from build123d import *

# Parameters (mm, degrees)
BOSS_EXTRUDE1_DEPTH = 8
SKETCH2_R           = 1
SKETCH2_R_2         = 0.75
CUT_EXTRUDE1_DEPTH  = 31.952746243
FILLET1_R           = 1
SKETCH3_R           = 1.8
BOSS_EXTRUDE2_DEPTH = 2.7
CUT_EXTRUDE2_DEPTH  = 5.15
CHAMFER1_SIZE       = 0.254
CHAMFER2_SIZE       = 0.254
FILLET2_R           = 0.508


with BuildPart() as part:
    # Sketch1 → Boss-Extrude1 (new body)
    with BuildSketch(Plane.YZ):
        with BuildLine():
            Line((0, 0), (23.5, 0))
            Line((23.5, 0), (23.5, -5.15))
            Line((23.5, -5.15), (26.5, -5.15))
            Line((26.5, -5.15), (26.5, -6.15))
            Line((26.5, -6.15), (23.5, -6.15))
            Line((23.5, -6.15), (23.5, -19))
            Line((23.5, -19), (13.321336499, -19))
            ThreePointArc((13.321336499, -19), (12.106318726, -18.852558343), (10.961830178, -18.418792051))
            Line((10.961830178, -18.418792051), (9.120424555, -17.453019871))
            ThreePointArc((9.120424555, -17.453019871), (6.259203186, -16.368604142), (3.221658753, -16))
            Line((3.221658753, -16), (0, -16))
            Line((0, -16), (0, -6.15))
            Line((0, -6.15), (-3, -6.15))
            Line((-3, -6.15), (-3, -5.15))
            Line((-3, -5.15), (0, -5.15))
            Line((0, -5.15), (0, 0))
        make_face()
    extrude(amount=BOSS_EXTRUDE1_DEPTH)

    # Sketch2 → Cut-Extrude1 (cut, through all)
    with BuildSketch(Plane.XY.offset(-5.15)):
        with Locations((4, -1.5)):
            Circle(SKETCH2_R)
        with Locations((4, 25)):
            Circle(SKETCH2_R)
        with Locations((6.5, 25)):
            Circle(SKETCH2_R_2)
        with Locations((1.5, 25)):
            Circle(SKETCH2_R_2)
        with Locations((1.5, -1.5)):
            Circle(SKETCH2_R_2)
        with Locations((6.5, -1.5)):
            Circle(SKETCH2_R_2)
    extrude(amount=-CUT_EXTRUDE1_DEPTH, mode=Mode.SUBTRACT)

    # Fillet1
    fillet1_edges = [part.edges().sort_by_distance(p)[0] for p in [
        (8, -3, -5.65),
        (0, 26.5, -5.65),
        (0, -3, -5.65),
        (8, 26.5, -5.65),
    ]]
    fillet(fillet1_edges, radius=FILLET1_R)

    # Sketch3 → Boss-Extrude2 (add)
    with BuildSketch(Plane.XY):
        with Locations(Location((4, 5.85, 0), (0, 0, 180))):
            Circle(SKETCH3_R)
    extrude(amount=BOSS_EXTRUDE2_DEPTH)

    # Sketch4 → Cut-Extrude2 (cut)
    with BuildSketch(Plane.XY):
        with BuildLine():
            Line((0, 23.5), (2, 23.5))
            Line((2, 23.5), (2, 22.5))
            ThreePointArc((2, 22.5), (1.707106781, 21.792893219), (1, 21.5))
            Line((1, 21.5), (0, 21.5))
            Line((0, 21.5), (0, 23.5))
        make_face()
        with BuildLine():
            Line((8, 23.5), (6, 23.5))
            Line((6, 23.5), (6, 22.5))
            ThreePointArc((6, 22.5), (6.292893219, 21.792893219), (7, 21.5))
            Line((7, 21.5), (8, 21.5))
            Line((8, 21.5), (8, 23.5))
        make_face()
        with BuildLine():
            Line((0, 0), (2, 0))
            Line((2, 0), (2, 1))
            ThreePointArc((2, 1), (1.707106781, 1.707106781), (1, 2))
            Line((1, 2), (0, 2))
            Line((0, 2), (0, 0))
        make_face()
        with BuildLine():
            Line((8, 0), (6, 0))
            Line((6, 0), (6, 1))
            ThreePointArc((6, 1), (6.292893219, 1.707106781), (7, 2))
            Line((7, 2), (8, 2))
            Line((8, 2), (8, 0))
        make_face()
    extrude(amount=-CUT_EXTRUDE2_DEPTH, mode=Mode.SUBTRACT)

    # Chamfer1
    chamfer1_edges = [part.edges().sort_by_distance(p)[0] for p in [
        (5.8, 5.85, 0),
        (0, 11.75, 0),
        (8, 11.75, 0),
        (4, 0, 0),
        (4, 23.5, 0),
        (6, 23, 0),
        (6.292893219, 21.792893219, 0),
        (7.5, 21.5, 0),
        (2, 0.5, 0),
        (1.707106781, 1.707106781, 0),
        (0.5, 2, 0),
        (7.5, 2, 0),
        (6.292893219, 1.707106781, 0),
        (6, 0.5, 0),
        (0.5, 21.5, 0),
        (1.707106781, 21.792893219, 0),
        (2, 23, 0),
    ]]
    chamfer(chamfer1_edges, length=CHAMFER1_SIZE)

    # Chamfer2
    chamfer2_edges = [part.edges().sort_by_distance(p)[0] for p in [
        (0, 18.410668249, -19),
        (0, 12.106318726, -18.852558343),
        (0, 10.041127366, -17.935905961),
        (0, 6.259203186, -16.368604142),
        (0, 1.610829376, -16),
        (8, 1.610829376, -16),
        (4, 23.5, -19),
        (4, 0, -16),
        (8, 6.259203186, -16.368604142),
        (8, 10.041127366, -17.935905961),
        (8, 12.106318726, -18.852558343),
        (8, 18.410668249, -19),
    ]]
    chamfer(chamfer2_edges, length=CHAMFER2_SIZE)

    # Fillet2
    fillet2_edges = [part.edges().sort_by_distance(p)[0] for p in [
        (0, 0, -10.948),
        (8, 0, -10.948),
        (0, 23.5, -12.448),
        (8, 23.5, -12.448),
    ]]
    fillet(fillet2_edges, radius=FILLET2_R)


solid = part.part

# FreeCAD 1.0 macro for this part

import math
import FreeCAD as App
import Part
import Sketcher

V = App.Vector
Q = App.Units.Quantity


def edges_at(feature, points):
    """Names of the edges that pass closest to the given points."""
    edges = feature.Shape.Edges
    near = lambda p: min(range(len(edges)), key=lambda i: edges[i].distToShape(Part.Vertex(*p))[0])
    return sorted({f"Edge{near(p) + 1}" for p in points})

doc = App.newDocument("Part")
body = doc.addObject("PartDesign::Body", "Body")

# Sketch on YZ plane
sketch1 = body.newObject("Sketcher::SketchObject", "Sketch")
sketch1.AttachmentSupport = (doc.getObject("YZ_Plane"), [""])
sketch1.MapMode = "FlatFace"
sketch1.addGeometry(Part.LineSegment(V(23.5, 0, 0), V(0, 0, 0)), False)
sketch1.addGeometry(Part.LineSegment(V(0, 0, 0), V(0, -5.15, 0)), False)
sketch1.addGeometry(Part.LineSegment(V(0, -5.15, 0), V(-3, -5.15, 0)), False)
sketch1.addGeometry(Part.LineSegment(V(-3, -5.15, 0), V(-3, -6.15, 0)), False)
sketch1.addGeometry(Part.LineSegment(V(-3, -6.15, 0), V(0, -6.15, 0)), False)
sketch1.addGeometry(Part.LineSegment(V(0, -6.15, 0), V(0, -16, 0)), False)
sketch1.addGeometry(Part.LineSegment(V(0, -16, 0), V(3.221659, -16, 0)), False)
sketch1.addGeometry(Part.ArcOfCircle(Part.Circle(V(3.221659, -28.7, 0), V(0, 0, 1), 12.7), math.radians(62.32409), math.radians(90)), False)
sketch1.addGeometry(Part.LineSegment(V(9.120425, -17.45302, 0), V(10.96183, -18.418792, 0)), False)
sketch1.addGeometry(Part.ArcOfCircle(Part.Circle(V(13.321337, -13.92, 0), V(0, 0, 1), 5.08), math.radians(-117.67591), math.radians(-90)), False)
sketch1.addGeometry(Part.LineSegment(V(13.321336, -19, 0), V(23.5, -19, 0)), False)
sketch1.addGeometry(Part.LineSegment(V(23.5, -19, 0), V(23.5, -6.15, 0)), False)
sketch1.addGeometry(Part.LineSegment(V(23.5, -6.15, 0), V(26.5, -6.15, 0)), False)
sketch1.addGeometry(Part.LineSegment(V(26.5, -6.15, 0), V(26.5, -5.15, 0)), False)
sketch1.addGeometry(Part.LineSegment(V(26.5, -5.15, 0), V(23.5, -5.15, 0)), False)
sketch1.addGeometry(Part.LineSegment(V(23.5, -5.15, 0), V(23.5, 0, 0)), False)
sketch1.addConstraint(Sketcher.Constraint("Coincident", 0, 2, 1, 1))
sketch1.addConstraint(Sketcher.Constraint("Coincident", 1, 2, 2, 1))
sketch1.addConstraint(Sketcher.Constraint("Coincident", 2, 2, 3, 1))
sketch1.addConstraint(Sketcher.Constraint("Coincident", 3, 2, 4, 1))
sketch1.addConstraint(Sketcher.Constraint("Coincident", 4, 2, 5, 1))
sketch1.addConstraint(Sketcher.Constraint("Coincident", 5, 2, 6, 1))
sketch1.addConstraint(Sketcher.Constraint("Tangent", 6, 2, 7, 2))
sketch1.addConstraint(Sketcher.Constraint("Tangent", 7, 1, 8, 1))
sketch1.addConstraint(Sketcher.Constraint("Tangent", 8, 2, 9, 1))
sketch1.addConstraint(Sketcher.Constraint("Tangent", 9, 2, 10, 1))
sketch1.addConstraint(Sketcher.Constraint("Coincident", 10, 2, 11, 1))
sketch1.addConstraint(Sketcher.Constraint("Coincident", 11, 2, 12, 1))
sketch1.addConstraint(Sketcher.Constraint("Coincident", 12, 2, 13, 1))
sketch1.addConstraint(Sketcher.Constraint("Coincident", 13, 2, 14, 1))
sketch1.addConstraint(Sketcher.Constraint("Coincident", 14, 2, 15, 1))
sketch1.addConstraint(Sketcher.Constraint("Coincident", 15, 2, 0, 1))
sketch1.addConstraint(Sketcher.Constraint("Horizontal", 0))
sketch1.addConstraint(Sketcher.Constraint("Vertical", 1))
sketch1.addConstraint(Sketcher.Constraint("Horizontal", 2))
sketch1.addConstraint(Sketcher.Constraint("Vertical", 3))
sketch1.addConstraint(Sketcher.Constraint("Horizontal", 4))
sketch1.addConstraint(Sketcher.Constraint("Vertical", 5))
sketch1.addConstraint(Sketcher.Constraint("Horizontal", 6))
sketch1.addConstraint(Sketcher.Constraint("Horizontal", 10))
sketch1.addConstraint(Sketcher.Constraint("Vertical", 11))
sketch1.addConstraint(Sketcher.Constraint("Horizontal", 12))
sketch1.addConstraint(Sketcher.Constraint("Vertical", 13))
sketch1.addConstraint(Sketcher.Constraint("Horizontal", 14))
sketch1.addConstraint(Sketcher.Constraint("Vertical", 15))
sketch1.addConstraint(Sketcher.Constraint("Coincident", 0, 2, -1, 1))
sketch1.addConstraint(Sketcher.Constraint("PointOnObject", 4, 2, -2))
sketch1.addConstraint(Sketcher.Constraint("Horizontal", 4, 2, 11, 2))
sketch1.addConstraint(Sketcher.Constraint("Horizontal", 2, 2, 13, 2))
sketch1.addConstraint(Sketcher.Constraint("Vertical", 11, 2, 14, 2))
sketch1.addConstraint(Sketcher.Constraint("Equal", 4, 12))
sketch1.addConstraint(Sketcher.Constraint("Radius", 7, Q("12.7 mm")))
sketch1.addConstraint(Sketcher.Constraint("DistanceX", 2, 2, 2, 1, Q("3 mm")))
sketch1.addConstraint(Sketcher.Constraint("DistanceY", 3, 2, 3, 1, Q("1 mm")))
sketch1.addConstraint(Sketcher.Constraint("Radius", 9, Q("5.08 mm")))
sketch1.addConstraint(Sketcher.Constraint("DistanceX", 0, 2, 0, 1, Q("23.5 mm")))
sketch1.addConstraint(Sketcher.Constraint("DistanceY", 5, 2, -1, 1, Q("16 mm")))
sketch1.addConstraint(Sketcher.Constraint("DistanceY", 9, 2, -1, 1, Q("19 mm")))
sketch1.addConstraint(Sketcher.Constraint("DistanceY", 1, 2, 1, 1, Q("5.15 mm")))
sketch1.addConstraint(Sketcher.Constraint("Distance", 8, Q("2.079301 mm")))
sketch1.addConstraint(Sketcher.Constraint("DistanceX", 6, 1, 6, 2, Q("3.221659 mm")))
pad1 = body.newObject("PartDesign::Pad", "Pad")
pad1.Profile = sketch1
pad1.Length = 8

# Sketch on XY plane
sketch2 = body.newObject("Sketcher::SketchObject", "Sketch001")
sketch2.AttachmentSupport = (doc.getObject("XY_Plane"), [""])
sketch2.MapMode = "FlatFace"
sketch2.AttachmentOffset = App.Placement(V(0, 0, -5.15), App.Rotation())
sketch2.addGeometry(Part.Circle(V(4, -1.5, 0), V(0, 0, 1), 1), False)
sketch2.addGeometry(Part.Circle(V(4, 25, 0), V(0, 0, 1), 1), False)
sketch2.addGeometry(Part.Circle(V(6.5, 25, 0), V(0, 0, 1), 0.75), False)
sketch2.addGeometry(Part.Circle(V(1.5, 25, 0), V(0, 0, 1), 0.75), False)
sketch2.addGeometry(Part.Circle(V(1.5, -1.5, 0), V(0, 0, 1), 0.75), False)
sketch2.addGeometry(Part.Circle(V(6.5, -1.5, 0), V(0, 0, 1), 0.75), False)
sketch2.addConstraint(Sketcher.Constraint("Equal", 0, 1))
sketch2.addConstraint(Sketcher.Constraint("Equal", 2, 3))
sketch2.addConstraint(Sketcher.Constraint("Equal", 3, 4))
sketch2.addConstraint(Sketcher.Constraint("Equal", 4, 5))
sketch2.addConstraint(Sketcher.Constraint("Horizontal", 1, 3, 2, 3))
sketch2.addConstraint(Sketcher.Constraint("Horizontal", 2, 3, 3, 3))
sketch2.addConstraint(Sketcher.Constraint("Horizontal", 0, 3, 4, 3))
sketch2.addConstraint(Sketcher.Constraint("Horizontal", 4, 3, 5, 3))
sketch2.addConstraint(Sketcher.Constraint("Vertical", 0, 3, 1, 3))
sketch2.addConstraint(Sketcher.Constraint("Vertical", 3, 3, 4, 3))
sketch2.addConstraint(Sketcher.Constraint("Vertical", 2, 3, 5, 3))
sketch2.addConstraint(Sketcher.Constraint("Diameter", 0, Q("2 mm")))
sketch2.addConstraint(Sketcher.Constraint("Diameter", 2, Q("1.5 mm")))
sketch2.addConstraint(Sketcher.Constraint("DistanceX", -1, 1, 0, 3, Q("4 mm")))
sketch2.addConstraint(Sketcher.Constraint("DistanceY", -1, 1, 1, 3, Q("25 mm")))
sketch2.addConstraint(Sketcher.Constraint("DistanceX", 3, 3, 2, 3, Q("5 mm")))
sketch2.addConstraint(Sketcher.Constraint("DistanceY", 0, 3, -1, 1, Q("1.5 mm")))
sketch2.addConstraint(Sketcher.Constraint("DistanceX", -1, 1, 2, 3, Q("6.5 mm")))
pocket1 = body.newObject("PartDesign::Pocket", "Pocket")
pocket1.Profile = sketch2
pocket1.Type = "ThroughAll"
doc.recompute()

fillet = body.newObject("PartDesign::Fillet", "Fillet")
fillet.Base = (pocket1, edges_at(pocket1, [
    (8, -3, -5.65),
    (0, 26.5, -5.65),
    (0, -3, -5.65),
    (8, 26.5, -5.65),
]))
fillet.Radius = 1

# Sketch on XY plane
sketch3 = body.newObject("Sketcher::SketchObject", "Sketch002")
sketch3.AttachmentSupport = (doc.getObject("XY_Plane"), [""])
sketch3.MapMode = "FlatFace"
sketch3.addGeometry(Part.Circle(V(4, 5.85, 0), V(0, 0, 1), 1.8), False)
sketch3.addConstraint(Sketcher.Constraint("Diameter", 0, Q("3.6 mm")))
sketch3.addConstraint(Sketcher.Constraint("DistanceX", -1, 1, 0, 3, Q("4 mm")))
sketch3.addConstraint(Sketcher.Constraint("DistanceY", -1, 1, 0, 3, Q("5.85 mm")))
pad2 = body.newObject("PartDesign::Pad", "Pad001")
pad2.Profile = sketch3
pad2.Length = 2.7

# Sketch on XY plane
sketch4 = body.newObject("Sketcher::SketchObject", "Sketch003")
sketch4.AttachmentSupport = (doc.getObject("XY_Plane"), [""])
sketch4.MapMode = "FlatFace"
sketch4.addGeometry(Part.LineSegment(V(2, 23.5, 0), V(0, 23.5, 0)), False)
sketch4.addGeometry(Part.LineSegment(V(0, 23.5, 0), V(0, 21.5, 0)), False)
sketch4.addGeometry(Part.LineSegment(V(0, 21.5, 0), V(1, 21.5, 0)), False)
sketch4.addGeometry(Part.ArcOfCircle(Part.Circle(V(1, 22.5, 0), V(0, 0, 1), 1), math.radians(-90), math.radians(0)), False)
sketch4.addGeometry(Part.LineSegment(V(2, 22.5, 0), V(2, 23.5, 0)), False)
sketch4.addGeometry(Part.LineSegment(V(8, 23.5, 0), V(6, 23.5, 0)), False)
sketch4.addGeometry(Part.LineSegment(V(6, 23.5, 0), V(6, 22.5, 0)), False)
sketch4.addGeometry(Part.ArcOfCircle(Part.Circle(V(7, 22.5, 0), V(0, 0, 1), 1), math.radians(-180), math.radians(-90)), False)
sketch4.addGeometry(Part.LineSegment(V(7, 21.5, 0), V(8, 21.5, 0)), False)
sketch4.addGeometry(Part.LineSegment(V(8, 21.5, 0), V(8, 23.5, 0)), False)
sketch4.addGeometry(Part.LineSegment(V(0, 0, 0), V(2, 0, 0)), False)
sketch4.addGeometry(Part.LineSegment(V(2, 0, 0), V(2, 1, 0)), False)
sketch4.addGeometry(Part.ArcOfCircle(Part.Circle(V(1, 1, 0), V(0, 0, 1), 1), math.radians(0), math.radians(90)), False)
sketch4.addGeometry(Part.LineSegment(V(1, 2, 0), V(0, 2, 0)), False)
sketch4.addGeometry(Part.LineSegment(V(0, 2, 0), V(0, 0, 0)), False)
sketch4.addGeometry(Part.LineSegment(V(6, 0, 0), V(8, 0, 0)), False)
sketch4.addGeometry(Part.LineSegment(V(8, 0, 0), V(8, 2, 0)), False)
sketch4.addGeometry(Part.LineSegment(V(8, 2, 0), V(7, 2, 0)), False)
sketch4.addGeometry(Part.ArcOfCircle(Part.Circle(V(7, 1, 0), V(0, 0, 1), 1), math.radians(90), math.radians(180)), False)
sketch4.addGeometry(Part.LineSegment(V(6, 1, 0), V(6, 0, 0)), False)
sketch4.addConstraint(Sketcher.Constraint("Coincident", 0, 2, 1, 1))
sketch4.addConstraint(Sketcher.Constraint("Coincident", 1, 2, 2, 1))
sketch4.addConstraint(Sketcher.Constraint("Tangent", 2, 2, 3, 1))
sketch4.addConstraint(Sketcher.Constraint("Tangent", 3, 2, 4, 1))
sketch4.addConstraint(Sketcher.Constraint("Coincident", 4, 2, 0, 1))
sketch4.addConstraint(Sketcher.Constraint("Coincident", 5, 2, 6, 1))
sketch4.addConstraint(Sketcher.Constraint("Tangent", 6, 2, 7, 1))
sketch4.addConstraint(Sketcher.Constraint("Tangent", 7, 2, 8, 1))
sketch4.addConstraint(Sketcher.Constraint("Coincident", 8, 2, 9, 1))
sketch4.addConstraint(Sketcher.Constraint("Coincident", 9, 2, 5, 1))
sketch4.addConstraint(Sketcher.Constraint("Coincident", 10, 2, 11, 1))
sketch4.addConstraint(Sketcher.Constraint("Tangent", 11, 2, 12, 1))
sketch4.addConstraint(Sketcher.Constraint("Tangent", 12, 2, 13, 1))
sketch4.addConstraint(Sketcher.Constraint("Coincident", 13, 2, 14, 1))
sketch4.addConstraint(Sketcher.Constraint("Coincident", 14, 2, 10, 1))
sketch4.addConstraint(Sketcher.Constraint("Coincident", 15, 2, 16, 1))
sketch4.addConstraint(Sketcher.Constraint("Coincident", 16, 2, 17, 1))
sketch4.addConstraint(Sketcher.Constraint("Tangent", 17, 2, 18, 1))
sketch4.addConstraint(Sketcher.Constraint("Tangent", 18, 2, 19, 1))
sketch4.addConstraint(Sketcher.Constraint("Coincident", 19, 2, 15, 1))
sketch4.addConstraint(Sketcher.Constraint("Horizontal", 0))
sketch4.addConstraint(Sketcher.Constraint("Vertical", 1))
sketch4.addConstraint(Sketcher.Constraint("Horizontal", 2))
sketch4.addConstraint(Sketcher.Constraint("Vertical", 4))
sketch4.addConstraint(Sketcher.Constraint("Horizontal", 5))
sketch4.addConstraint(Sketcher.Constraint("Vertical", 6))
sketch4.addConstraint(Sketcher.Constraint("Horizontal", 8))
sketch4.addConstraint(Sketcher.Constraint("Vertical", 9))
sketch4.addConstraint(Sketcher.Constraint("Horizontal", 10))
sketch4.addConstraint(Sketcher.Constraint("Vertical", 11))
sketch4.addConstraint(Sketcher.Constraint("Horizontal", 13))
sketch4.addConstraint(Sketcher.Constraint("Vertical", 14))
sketch4.addConstraint(Sketcher.Constraint("Horizontal", 15))
sketch4.addConstraint(Sketcher.Constraint("Vertical", 16))
sketch4.addConstraint(Sketcher.Constraint("Horizontal", 17))
sketch4.addConstraint(Sketcher.Constraint("Vertical", 19))
sketch4.addConstraint(Sketcher.Constraint("Coincident", 14, 2, -1, 1))
sketch4.addConstraint(Sketcher.Constraint("Equal", 3, 7))
sketch4.addConstraint(Sketcher.Constraint("Equal", 7, 12))
sketch4.addConstraint(Sketcher.Constraint("Equal", 12, 18))
sketch4.addConstraint(Sketcher.Constraint("PointOnObject", 0, 2, -2))
sketch4.addConstraint(Sketcher.Constraint("PointOnObject", 15, 2, -1))
sketch4.addConstraint(Sketcher.Constraint("Horizontal", 3, 3, 7, 3))
sketch4.addConstraint(Sketcher.Constraint("Horizontal", 12, 3, 18, 3))
sketch4.addConstraint(Sketcher.Constraint("Horizontal", 4, 2, 5, 2))
sketch4.addConstraint(Sketcher.Constraint("Vertical", 3, 3, 12, 3))
sketch4.addConstraint(Sketcher.Constraint("Vertical", 7, 3, 18, 3))
sketch4.addConstraint(Sketcher.Constraint("Vertical", 9, 2, 15, 2))
sketch4.addConstraint(Sketcher.Constraint("Equal", 0, 5))
sketch4.addConstraint(Sketcher.Constraint("Equal", 15, 1))
sketch4.addConstraint(Sketcher.Constraint("Equal", 6, 11))
sketch4.addConstraint(Sketcher.Constraint("Radius", 3, Q("1 mm")))
sketch4.addConstraint(Sketcher.Constraint("DistanceX", 0, 2, 0, 1, Q("2 mm")))
sketch4.addConstraint(Sketcher.Constraint("DistanceX", -1, 1, 7, 3, Q("7 mm")))
sketch4.addConstraint(Sketcher.Constraint("DistanceY", -1, 1, 3, 3, Q("22.5 mm")))
pocket2 = body.newObject("PartDesign::Pocket", "Pocket001")
pocket2.Profile = sketch4
pocket2.Length = 5.15
doc.recompute()

chamfer = body.newObject("PartDesign::Chamfer", "Chamfer")
chamfer.Base = (pocket2, edges_at(pocket2, [
    (5.8, 5.85, 0),
    (0, 11.75, 0),
    (8, 11.75, 0),
    (4, 0, 0),
    (4, 23.5, 0),
    (6, 23, 0),
    (6.293, 21.793, 0),
    (7.5, 21.5, 0),
    (2, 0.5, 0),
    (1.707, 1.707, 0),
    (0.5, 2, 0),
    (7.5, 2, 0),
    (6.293, 1.707, 0),
    (6, 0.5, 0),
    (0.5, 21.5, 0),
    (1.707, 21.793, 0),
    (2, 23, 0),
]))
chamfer.Size = 0.254
doc.recompute()

chamfer2 = body.newObject("PartDesign::Chamfer", "Chamfer001")
chamfer2.Base = (chamfer, edges_at(chamfer, [
    (0, 18.411, -19),
    (0, 12.106, -18.853),
    (0, 10.041, -17.936),
    (0, 6.259, -16.369),
    (0, 1.611, -16),
    (8, 1.611, -16),
    (4, 23.5, -19),
    (4, 0, -16),
    (8, 6.259, -16.369),
    (8, 10.041, -17.936),
    (8, 12.106, -18.853),
    (8, 18.411, -19),
]))
chamfer2.Size = 0.254
doc.recompute()

fillet2 = body.newObject("PartDesign::Fillet", "Fillet001")
fillet2.Base = (chamfer2, edges_at(chamfer2, [
    (0, 0, -10.948),
    (8, 0, -10.948),
    (0, 23.5, -12.448),
    (8, 23.5, -12.448),
]))
fillet2.Radius = 0.508

doc.recompute()
